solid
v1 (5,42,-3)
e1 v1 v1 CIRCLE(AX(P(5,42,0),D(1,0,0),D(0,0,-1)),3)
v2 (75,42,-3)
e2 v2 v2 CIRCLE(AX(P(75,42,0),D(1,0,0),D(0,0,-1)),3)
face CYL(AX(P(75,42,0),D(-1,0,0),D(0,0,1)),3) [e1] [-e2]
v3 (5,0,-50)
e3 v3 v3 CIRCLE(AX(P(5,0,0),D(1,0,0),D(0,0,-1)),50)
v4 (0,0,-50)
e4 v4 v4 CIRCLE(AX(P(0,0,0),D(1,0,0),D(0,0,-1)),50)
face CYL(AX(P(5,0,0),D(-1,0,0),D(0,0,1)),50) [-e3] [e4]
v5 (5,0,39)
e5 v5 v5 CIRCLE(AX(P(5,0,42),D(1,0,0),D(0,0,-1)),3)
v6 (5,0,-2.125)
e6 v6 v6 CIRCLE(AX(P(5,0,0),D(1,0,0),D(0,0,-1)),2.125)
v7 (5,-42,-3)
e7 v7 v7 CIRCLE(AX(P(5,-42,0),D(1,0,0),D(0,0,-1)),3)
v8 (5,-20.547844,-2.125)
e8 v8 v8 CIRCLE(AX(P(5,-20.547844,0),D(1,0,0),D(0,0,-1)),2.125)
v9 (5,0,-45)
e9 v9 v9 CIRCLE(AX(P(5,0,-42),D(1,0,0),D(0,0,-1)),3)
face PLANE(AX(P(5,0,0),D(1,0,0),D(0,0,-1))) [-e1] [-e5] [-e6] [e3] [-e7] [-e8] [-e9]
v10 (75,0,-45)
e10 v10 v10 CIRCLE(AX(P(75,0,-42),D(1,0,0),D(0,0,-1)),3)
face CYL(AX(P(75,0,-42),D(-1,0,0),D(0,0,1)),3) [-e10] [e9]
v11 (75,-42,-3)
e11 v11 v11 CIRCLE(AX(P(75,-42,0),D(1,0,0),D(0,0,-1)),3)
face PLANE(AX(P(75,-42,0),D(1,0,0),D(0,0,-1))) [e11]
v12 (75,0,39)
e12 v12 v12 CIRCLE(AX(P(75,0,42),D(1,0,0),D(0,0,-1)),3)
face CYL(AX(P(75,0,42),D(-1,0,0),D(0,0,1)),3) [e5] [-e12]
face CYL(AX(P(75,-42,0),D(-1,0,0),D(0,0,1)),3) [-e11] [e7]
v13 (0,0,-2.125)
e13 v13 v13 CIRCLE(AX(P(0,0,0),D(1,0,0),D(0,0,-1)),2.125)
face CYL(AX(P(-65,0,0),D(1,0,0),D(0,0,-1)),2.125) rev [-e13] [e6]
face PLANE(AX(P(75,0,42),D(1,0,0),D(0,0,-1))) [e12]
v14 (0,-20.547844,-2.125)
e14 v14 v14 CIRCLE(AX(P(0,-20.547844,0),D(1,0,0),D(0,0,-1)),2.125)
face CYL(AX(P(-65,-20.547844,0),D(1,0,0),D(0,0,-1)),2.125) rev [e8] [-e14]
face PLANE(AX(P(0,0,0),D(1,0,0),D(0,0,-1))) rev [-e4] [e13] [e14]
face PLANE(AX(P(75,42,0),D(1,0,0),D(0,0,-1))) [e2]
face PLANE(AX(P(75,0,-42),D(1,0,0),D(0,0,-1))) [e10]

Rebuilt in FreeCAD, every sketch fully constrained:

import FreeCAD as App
import Part
import Sketcher
from FreeCAD import Vector
Q = App.Units.Quantity

doc = App.newDocument("Part")
body = doc.addObject("PartDesign::Body", "Body")

sketch1 = body.newObject("Sketcher::SketchObject", "Sketch")
sketch1.AttachmentSupport = (doc.getObject("YZ_Plane"), [""])
sketch1.MapMode = "FlatFace"
sketch1.addGeometry(Part.Circle(Vector(0, 0, 0), Vector(0, 0, 1), 50), False)
sketch1.addConstraint([
    Sketcher.Constraint("Coincident", 0, 3, -1, 1),
    Sketcher.Constraint("Diameter", 0, Q("100 mm")),
])
pad1 = body.newObject("PartDesign::Pad", "Pad")
pad1.Profile = sketch1
pad1.Length = 5

sketch2 = body.newObject("Sketcher::SketchObject", "Sketch001")
sketch2.AttachmentSupport = (doc.getObject("YZ_Plane"), [""])
sketch2.MapMode = "FlatFace"
sketch2.AttachmentOffset = App.Placement(Vector(0, 0, 5), App.Rotation())
sketch2.addGeometry([
    Part.Circle(Vector(0, 42, 0), Vector(0, 0, 1), 3),
    Part.Circle(Vector(0, -42, 0), Vector(0, 0, 1), 3),
    Part.Circle(Vector(-42, 0, 0), Vector(0, 0, 1), 3),
    Part.Circle(Vector(42, 0, 0), Vector(0, 0, 1), 3),
], False)
sketch2.addConstraint([
    Sketcher.Constraint("Equal", 0, 1),
    Sketcher.Constraint("Equal", 1, 2),
    Sketcher.Constraint("Equal", 2, 3),
    Sketcher.Constraint("Symmetric", 0, 3, 1, 3, -1, 1),
    Sketcher.Constraint("Symmetric", 2, 3, 3, 3, -1, 1),
    Sketcher.Constraint("PointOnObject", 0, 3, -2),
    Sketcher.Constraint("PointOnObject", 2, 3, -1),
    Sketcher.Constraint("Diameter", 0, Q("6 mm")),
    Sketcher.Constraint("DistanceY", -1, 1, 0, 3, Q("42 mm")),
    Sketcher.Constraint("DistanceX", 2, 3, -1, 1, Q("42 mm")),
])
pad2 = body.newObject("PartDesign::Pad", "Pad001")
pad2.Profile = sketch2
pad2.Length = 70

sketch3 = body.newObject("Sketcher::SketchObject", "Sketch002")
sketch3.AttachmentSupport = (doc.getObject("YZ_Plane"), [""])
sketch3.MapMode = "FlatFace"
sketch3.AttachmentOffset = App.Placement(Vector(0, 0, 5), App.Rotation())
sketch3.addGeometry([
    Part.Circle(Vector(0, 0, 0), Vector(0, 0, 1), 2.1),
    Part.Circle(Vector(-20.5, 0, 0), Vector(0, 0, 1), 2.1),
], False)
sketch3.addConstraint([
    Sketcher.Constraint("Coincident", 0, 3, -1, 1),
    Sketcher.Constraint("Equal", 0, 1),
    Sketcher.Constraint("PointOnObject", 1, 3, -1),
    Sketcher.Constraint("Diameter", 0, Q("4.25 mm")),
    Sketcher.Constraint("DistanceX", 1, 3, -1, 1, Q("20.547844 mm")),
])
pocket1 = body.newObject("PartDesign::Pocket", "Pocket")
pocket1.Profile = sketch3
pocket1.Length = 70

doc.recompute()
